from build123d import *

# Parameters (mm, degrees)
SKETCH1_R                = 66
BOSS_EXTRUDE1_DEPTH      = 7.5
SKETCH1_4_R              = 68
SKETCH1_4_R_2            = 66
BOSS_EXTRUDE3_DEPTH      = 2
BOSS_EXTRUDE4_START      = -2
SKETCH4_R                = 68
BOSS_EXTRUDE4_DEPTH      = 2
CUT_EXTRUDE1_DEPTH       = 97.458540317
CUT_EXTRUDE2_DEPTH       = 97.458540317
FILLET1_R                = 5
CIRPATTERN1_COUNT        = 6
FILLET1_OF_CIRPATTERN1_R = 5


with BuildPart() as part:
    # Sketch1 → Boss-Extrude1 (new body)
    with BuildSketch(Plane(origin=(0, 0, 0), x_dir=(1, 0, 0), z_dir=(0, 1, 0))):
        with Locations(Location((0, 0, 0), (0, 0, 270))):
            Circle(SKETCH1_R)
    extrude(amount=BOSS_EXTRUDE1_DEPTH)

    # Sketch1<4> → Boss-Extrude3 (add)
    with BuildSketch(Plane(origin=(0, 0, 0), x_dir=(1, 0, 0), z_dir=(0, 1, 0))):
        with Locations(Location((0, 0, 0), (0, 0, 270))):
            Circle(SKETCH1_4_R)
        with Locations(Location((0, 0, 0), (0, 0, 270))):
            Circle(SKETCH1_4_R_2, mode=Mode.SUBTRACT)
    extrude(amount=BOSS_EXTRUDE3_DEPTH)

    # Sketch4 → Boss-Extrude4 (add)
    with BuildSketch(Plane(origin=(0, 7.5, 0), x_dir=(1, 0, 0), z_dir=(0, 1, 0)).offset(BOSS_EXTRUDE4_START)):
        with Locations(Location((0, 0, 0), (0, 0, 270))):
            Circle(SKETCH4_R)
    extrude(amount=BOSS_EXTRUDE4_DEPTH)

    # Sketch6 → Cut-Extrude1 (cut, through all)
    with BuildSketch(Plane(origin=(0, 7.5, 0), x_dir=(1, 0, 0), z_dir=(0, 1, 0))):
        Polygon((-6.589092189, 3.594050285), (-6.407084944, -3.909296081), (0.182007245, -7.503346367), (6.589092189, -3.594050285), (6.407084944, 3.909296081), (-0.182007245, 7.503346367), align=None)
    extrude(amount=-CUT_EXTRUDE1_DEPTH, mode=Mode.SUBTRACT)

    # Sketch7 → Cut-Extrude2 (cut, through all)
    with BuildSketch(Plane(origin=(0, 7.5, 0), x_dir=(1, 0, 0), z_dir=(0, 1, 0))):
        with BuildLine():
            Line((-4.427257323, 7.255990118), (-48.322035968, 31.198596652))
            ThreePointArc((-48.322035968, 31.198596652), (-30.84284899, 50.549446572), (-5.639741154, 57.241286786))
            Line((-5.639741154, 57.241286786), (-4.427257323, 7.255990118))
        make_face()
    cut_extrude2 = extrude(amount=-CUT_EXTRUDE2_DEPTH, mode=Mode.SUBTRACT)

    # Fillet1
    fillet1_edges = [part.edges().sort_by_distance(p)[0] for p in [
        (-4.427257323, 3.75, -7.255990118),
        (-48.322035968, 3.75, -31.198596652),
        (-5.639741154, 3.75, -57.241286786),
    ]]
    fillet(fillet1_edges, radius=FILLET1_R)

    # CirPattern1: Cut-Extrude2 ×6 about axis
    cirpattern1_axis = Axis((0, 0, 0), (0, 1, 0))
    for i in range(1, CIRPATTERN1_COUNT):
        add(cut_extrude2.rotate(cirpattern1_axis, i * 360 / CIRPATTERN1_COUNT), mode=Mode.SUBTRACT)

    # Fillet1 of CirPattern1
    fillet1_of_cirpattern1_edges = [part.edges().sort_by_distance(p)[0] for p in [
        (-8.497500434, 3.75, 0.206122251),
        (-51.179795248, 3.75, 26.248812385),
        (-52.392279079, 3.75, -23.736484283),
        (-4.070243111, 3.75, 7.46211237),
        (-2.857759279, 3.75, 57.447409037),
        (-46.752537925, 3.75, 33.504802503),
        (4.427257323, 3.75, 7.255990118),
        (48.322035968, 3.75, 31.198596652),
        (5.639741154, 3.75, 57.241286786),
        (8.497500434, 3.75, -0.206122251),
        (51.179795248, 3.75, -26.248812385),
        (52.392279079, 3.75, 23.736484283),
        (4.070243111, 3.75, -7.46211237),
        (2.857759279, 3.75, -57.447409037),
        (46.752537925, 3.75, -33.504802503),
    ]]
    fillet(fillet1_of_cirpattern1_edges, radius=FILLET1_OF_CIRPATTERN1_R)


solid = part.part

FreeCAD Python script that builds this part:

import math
import FreeCAD as App
import Part
import Sketcher


def edges_at(feature, points):
    """Names of the edges that pass closest to the given points."""
    edges = feature.Shape.Edges
    near = lambda p: min(range(len(edges)), key=lambda i: edges[i].distToShape(Part.Vertex(*p))[0])
    return sorted({f"Edge{near(p) + 1}" for p in points})

doc = App.newDocument("Part")
params = doc.addObject("Spreadsheet::Sheet", "Params")
for row, (alias, value) in enumerate([
    ("sketch1_diameter", "132 mm"),
    ("pad1_length", "7.5 mm"),
    ("sketch2_diameter", "136 mm"),
    ("sketch2_diameter2", "132 mm"),
    ("pad2_length", "2 mm"),
    ("sketch3_diameter", "136 mm"),
    ("pad3_length", "2 mm"),
    ("sketch5_length", "50 mm"),
    ("fillet_radius", "5 mm"),
    ("fillet2_radius", "5 mm"),
], start=1):
    params.set(f"A{row}", alias)
    params.set(f"B{row}", "=" + value)
    params.setAlias(f"B{row}", alias)

body = doc.addObject("PartDesign::Body", "Body")

sketch1 = doc.addObject("Sketcher::SketchObject", "Sketch")
body.addObject(sketch1)
sketch1.AttachmentSupport = (doc.XZ_Plane, [""])
sketch1.MapMode = "FlatFace"
sketch1.addGeometry(Part.Circle(App.Vector(0, 0, 0), App.Vector(0, 0, 1), 66), False)
sketch1.addConstraint(Sketcher.Constraint("Coincident", 0, 3, -1, 1))
sketch1.addConstraint(Sketcher.Constraint("Diameter", 0, 132.0))
sketch1.setExpression("Constraints[1]", "Params.sketch1_diameter")
pad1 = doc.addObject("PartDesign::Pad", "Pad")
body.addObject(pad1)
pad1.Profile = sketch1
pad1.setExpression("Length", "Params.pad1_length")
pad1.Reversed = True

sketch2 = doc.addObject("Sketcher::SketchObject", "Sketch001")
body.addObject(sketch2)
sketch2.AttachmentSupport = (doc.XZ_Plane, [""])
sketch2.MapMode = "FlatFace"
sketch2.addGeometry(Part.Circle(App.Vector(0, 0, 0), App.Vector(0, 0, 1), 68), False)
sketch2.addGeometry(Part.Circle(App.Vector(0, 0, 0), App.Vector(0, 0, 1), 66), False)
sketch2.addConstraint(Sketcher.Constraint("Coincident", 0, 3, -1, 1))
sketch2.addConstraint(Sketcher.Constraint("Coincident", 1, 3, -1, 1))
sketch2.addConstraint(Sketcher.Constraint("Diameter", 0, 136.0))
sketch2.addConstraint(Sketcher.Constraint("Diameter", 1, 132.0))
sketch2.setExpression("Constraints[2]", "Params.sketch2_diameter")
sketch2.setExpression("Constraints[3]", "Params.sketch2_diameter2")
pad2 = doc.addObject("PartDesign::Pad", "Pad001")
body.addObject(pad2)
pad2.Profile = sketch2
pad2.setExpression("Length", "Params.pad2_length")
pad2.Reversed = True

sketch3 = doc.addObject("Sketcher::SketchObject", "Sketch002")
body.addObject(sketch3)
sketch3.AttachmentSupport = (doc.XZ_Plane, [""])
sketch3.MapMode = "FlatFace"
sketch3.AttachmentOffset = App.Placement(App.Vector(0, 0, -5.5), App.Rotation())
sketch3.addGeometry(Part.Circle(App.Vector(0, 0, 0), App.Vector(0, 0, 1), 68), False)
sketch3.addConstraint(Sketcher.Constraint("Coincident", 0, 3, -1, 1))
sketch3.addConstraint(Sketcher.Constraint("Diameter", 0, 136.0))
sketch3.setExpression("Constraints[1]", "Params.sketch3_diameter")
pad3 = doc.addObject("PartDesign::Pad", "Pad002")
body.addObject(pad3)
pad3.Profile = sketch3
pad3.setExpression("Length", "Params.pad3_length")
pad3.Reversed = True

sketch4 = doc.addObject("Sketcher::SketchObject", "Sketch003")
body.addObject(sketch4)
sketch4.AttachmentSupport = (doc.XZ_Plane, [""])
sketch4.MapMode = "FlatFace"
sketch4.AttachmentOffset = App.Placement(App.Vector(0, 0, -7.5), App.Rotation())
sketch4.addGeometry(Part.LineSegment(App.Vector(-7, -4, 0), App.Vector(-6, 4, 0)), False)
sketch4.addGeometry(Part.LineSegment(App.Vector(-6, 4, 0), App.Vector(0, 8, 0)), False)
sketch4.addGeometry(Part.LineSegment(App.Vector(0, 8, 0), App.Vector(7, 4, 0)), False)
sketch4.addGeometry(Part.LineSegment(App.Vector(7, 4, 0), App.Vector(6, -4, 0)), False)
sketch4.addGeometry(Part.LineSegment(App.Vector(6, -4, 0), App.Vector(0, -8, 0)), False)
sketch4.addGeometry(Part.LineSegment(App.Vector(0, -8, 0), App.Vector(-7, -4, 0)), False)
sketch4.addConstraint(Sketcher.Constraint("Coincident", 0, 2, 1, 1))
sketch4.addConstraint(Sketcher.Constraint("Coincident", 1, 2, 2, 1))
sketch4.addConstraint(Sketcher.Constraint("Coincident", 2, 2, 3, 1))
sketch4.addConstraint(Sketcher.Constraint("Coincident", 3, 2, 4, 1))
sketch4.addConstraint(Sketcher.Constraint("Coincident", 4, 2, 5, 1))
sketch4.addConstraint(Sketcher.Constraint("Coincident", 5, 2, 0, 1))
sketch4.addConstraint(Sketcher.Constraint("Symmetric", 0, 2, 3, 2, -1, 1))
sketch4.addConstraint(Sketcher.Constraint("Symmetric", 1, 2, 4, 2, -1, 1))
sketch4.addConstraint(Sketcher.Constraint("Symmetric", 2, 2, 5, 2, -1, 1))
sketch4.addConstraint(Sketcher.Constraint("Equal", 0, 1))
sketch4.addConstraint(Sketcher.Constraint("Equal", 1, 2))
sketch4.addConstraint(Sketcher.Constraint("DistanceX", 4, 2, 2, 2, 6.771099))
sketch4.addConstraint(Sketcher.Constraint("DistanceY", 5, 2, 2, 2, 7.188101))
sketch4.addConstraint(Sketcher.Constraint("DistanceY", 0, 2, 1, 2, 3.59405))
sketch4.addConstraint(Sketcher.Constraint("DistanceX", 0, 2, 3, 2, 12.81417))
pocket1 = doc.addObject("PartDesign::Pocket", "Pocket")
body.addObject(pocket1)
pocket1.Profile = sketch4
pocket1.Type = "ThroughAll"
pocket1.Reversed = True

sketch5 = doc.addObject("Sketcher::SketchObject", "Sketch004")
body.addObject(sketch5)
sketch5.AttachmentSupport = (doc.XZ_Plane, [""])
sketch5.MapMode = "FlatFace"
sketch5.AttachmentOffset = App.Placement(App.Vector(0, 0, -7.5), App.Rotation())
sketch5.addGeometry(Part.LineSegment(App.Vector(-48, -31, 0), App.Vector(-4, -7, 0)), False)
sketch5.addGeometry(Part.LineSegment(App.Vector(-4, -7, 0), App.Vector(-6, -57, 0)), False)
sketch5.addGeometry(Part.ArcOfCircle(Part.Circle(App.Vector(-7, -11, 0), App.Vector(0, 0, 1), 46), math.radians(-154), math.radians(-88)), False)
sketch5.addConstraint(Sketcher.Constraint("Coincident", 0, 2, 1, 1))
sketch5.addConstraint(Sketcher.Constraint("Coincident", 1, 2, 2, 2))
sketch5.addConstraint(Sketcher.Constraint("Coincident", 2, 1, 0, 1))
sketch5.addConstraint(Sketcher.Constraint("Equal", 0, 1))
sketch5.addConstraint(Sketcher.Constraint("Distance", 0, 50.0))
sketch5.addConstraint(Sketcher.Constraint("Radius", 2, 45.853499))
sketch5.addConstraint(Sketcher.Constraint("DistanceY", 2, 1, 2, 3, 19.791802))
sketch5.addConstraint(Sketcher.Constraint("DistanceX", 2, 3, -1, 1, 6.95988))
sketch5.addConstraint(Sketcher.Constraint("DistanceY", 0, 2, -1, 1, 7.25599))
sketch5.addConstraint(Sketcher.Constraint("DistanceX", 1, 2, -1, 1, 5.639741))
sketch5.setExpression("Constraints[4]", "Params.sketch5_length")
pocket2 = doc.addObject("PartDesign::Pocket", "Pocket001")
body.addObject(pocket2)
pocket2.Profile = sketch5
pocket2.Type = "ThroughAll"
pocket2.Reversed = True
doc.recompute()

fillet = doc.addObject("PartDesign::Fillet", "Fillet")
body.addObject(fillet)
fillet.Base = (pocket2, edges_at(pocket2, [(-4.427, 3.75, -7.256), (-48.322, 3.75, -31.199), (-5.64, 3.75, -57.241)]))
fillet.setExpression("Radius", "Params.fillet_radius")
doc.recompute()

polarpattern = doc.addObject("PartDesign::PolarPattern", "PolarPattern")
body.addObject(polarpattern)
polarpattern.Originals = [pocket2]
polarpattern.Axis = (doc.Y_Axis, [""])
polarpattern.Angle = 360
polarpattern.Occurrences = 6
body.Tip = polarpattern
doc.recompute()

fillet2 = doc.addObject("PartDesign::Fillet", "Fillet001")
body.addObject(fillet2)
fillet2.Base = (polarpattern, edges_at(polarpattern, [
    (-8.498, 3.75, 0.206),
    (-51.18, 3.75, 26.249),
    (-52.392, 3.75, -23.736),
    (-4.07, 3.75, 7.462),
    (-2.858, 3.75, 57.447),
    (-46.753, 3.75, 33.505),
    (4.427, 3.75, 7.256),
    (48.322, 3.75, 31.199),
    (5.64, 3.75, 57.241),
    (8.498, 3.75, -0.206),
    (51.18, 3.75, -26.249),
    (52.392, 3.75, 23.736),
    (4.07, 3.75, -7.462),
    (2.858, 3.75, -57.447),
    (46.753, 3.75, -33.505),
]))
fillet2.setExpression("Radius", "Params.fillet2_radius")

doc.recompute()
